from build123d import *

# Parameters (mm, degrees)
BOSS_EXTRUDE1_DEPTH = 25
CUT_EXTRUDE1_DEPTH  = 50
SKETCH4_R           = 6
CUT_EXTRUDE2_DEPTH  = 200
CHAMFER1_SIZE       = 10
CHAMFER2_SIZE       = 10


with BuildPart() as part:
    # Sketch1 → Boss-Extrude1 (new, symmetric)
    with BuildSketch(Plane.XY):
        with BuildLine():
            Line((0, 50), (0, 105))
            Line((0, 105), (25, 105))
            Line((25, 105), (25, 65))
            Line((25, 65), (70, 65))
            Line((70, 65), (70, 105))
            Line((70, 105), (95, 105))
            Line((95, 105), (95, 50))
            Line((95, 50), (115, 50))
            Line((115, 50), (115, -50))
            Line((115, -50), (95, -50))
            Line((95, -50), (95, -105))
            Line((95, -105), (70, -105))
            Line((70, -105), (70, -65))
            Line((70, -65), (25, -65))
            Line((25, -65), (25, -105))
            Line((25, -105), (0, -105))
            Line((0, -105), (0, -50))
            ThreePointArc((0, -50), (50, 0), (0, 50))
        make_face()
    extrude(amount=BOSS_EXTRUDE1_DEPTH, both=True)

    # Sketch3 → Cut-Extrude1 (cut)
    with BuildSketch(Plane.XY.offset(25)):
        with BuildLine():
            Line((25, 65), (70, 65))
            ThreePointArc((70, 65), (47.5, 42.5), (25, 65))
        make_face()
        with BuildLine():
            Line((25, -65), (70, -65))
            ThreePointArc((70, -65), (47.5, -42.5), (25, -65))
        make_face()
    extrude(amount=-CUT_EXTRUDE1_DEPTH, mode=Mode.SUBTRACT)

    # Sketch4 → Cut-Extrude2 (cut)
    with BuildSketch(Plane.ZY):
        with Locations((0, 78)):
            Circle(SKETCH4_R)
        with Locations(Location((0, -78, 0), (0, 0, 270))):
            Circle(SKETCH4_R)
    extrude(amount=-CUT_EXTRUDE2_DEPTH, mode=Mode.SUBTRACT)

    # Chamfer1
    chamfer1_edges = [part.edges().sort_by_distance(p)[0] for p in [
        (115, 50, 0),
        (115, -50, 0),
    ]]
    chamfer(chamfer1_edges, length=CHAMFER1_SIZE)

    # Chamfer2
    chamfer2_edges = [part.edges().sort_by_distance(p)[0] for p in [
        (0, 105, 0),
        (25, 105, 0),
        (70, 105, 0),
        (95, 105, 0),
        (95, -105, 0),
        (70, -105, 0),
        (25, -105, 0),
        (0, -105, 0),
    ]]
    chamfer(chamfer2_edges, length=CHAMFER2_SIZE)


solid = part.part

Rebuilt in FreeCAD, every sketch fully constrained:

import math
import FreeCAD as App
import Part
import Sketcher


def edges_at(feature, points):
    """Names of the edges that pass closest to the given points."""
    edges = feature.Shape.Edges
    near = lambda p: min(range(len(edges)), key=lambda i: edges[i].distToShape(Part.Vertex(*p))[0])
    return sorted({f"Edge{near(p) + 1}" for p in points})

doc = App.newDocument("Part")
params = doc.addObject("Spreadsheet::Sheet", "Params")
for row, (alias, value) in enumerate([
    ("sketch1_radius", "50 mm"),
    ("sketch1_width", "25 mm"),
    ("sketch1_width2", "45 mm"),
    ("sketch1_width3", "20 mm"),
    ("sketch1_height", "55 mm"),
    ("pad1_length", "50 mm"),
    ("sketch2_radius", "22.5 mm"),
    ("pocket1_length", "50 mm"),
    ("sketch3_diameter", "12 mm"),
    ("pocket2_length", "200 mm"),
    ("chamfer_size", "10 mm"),
    ("chamfer2_size", "10 mm"),
], start=1):
    params.set(f"A{row}", alias)
    params.set(f"B{row}", "=" + value)
    params.setAlias(f"B{row}", alias)

body = doc.addObject("PartDesign::Body", "Body")

sketch1 = body.newObject("Sketcher::SketchObject", "Sketch")
sketch1.AttachmentSupport = (doc.getObject("XY_Plane"), [""])
sketch1.MapMode = "FlatFace"
sketch1.addGeometry([
    Part.LineSegment(App.Vector(0, 105, 0), App.Vector(0, 50, 0)),
    Part.ArcOfCircle(Part.Circle(App.Vector(0, 0, 0), App.Vector(0, 0, 1), 50), math.radians(-90), math.radians(90)),
    Part.LineSegment(App.Vector(0, -50, 0), App.Vector(0, -105, 0)),
    Part.LineSegment(App.Vector(0, -105, 0), App.Vector(25, -105, 0)),
    Part.LineSegment(App.Vector(25, -105, 0), App.Vector(25, -65, 0)),
    Part.LineSegment(App.Vector(25, -65, 0), App.Vector(70, -65, 0)),
    Part.LineSegment(App.Vector(70, -65, 0), App.Vector(70, -105, 0)),
    Part.LineSegment(App.Vector(70, -105, 0), App.Vector(95, -105, 0)),
    Part.LineSegment(App.Vector(95, -105, 0), App.Vector(95, -50, 0)),
    Part.LineSegment(App.Vector(95, -50, 0), App.Vector(115, -50, 0)),
    Part.LineSegment(App.Vector(115, -50, 0), App.Vector(115, 50, 0)),
    Part.LineSegment(App.Vector(115, 50, 0), App.Vector(95, 50, 0)),
    Part.LineSegment(App.Vector(95, 50, 0), App.Vector(95, 105, 0)),
    Part.LineSegment(App.Vector(95, 105, 0), App.Vector(70, 105, 0)),
    Part.LineSegment(App.Vector(70, 105, 0), App.Vector(70, 65, 0)),
    Part.LineSegment(App.Vector(70, 65, 0), App.Vector(25, 65, 0)),
    Part.LineSegment(App.Vector(25, 65, 0), App.Vector(25, 105, 0)),
    Part.LineSegment(App.Vector(25, 105, 0), App.Vector(0, 105, 0)),
], False)
sketch1.addConstraint([
    Sketcher.Constraint("Coincident", 0, 2, 1, 2),
    Sketcher.Constraint("Coincident", 1, 1, 2, 1),
    Sketcher.Constraint("Coincident", 2, 2, 3, 1),
    Sketcher.Constraint("Coincident", 3, 2, 4, 1),
    Sketcher.Constraint("Coincident", 4, 2, 5, 1),
    Sketcher.Constraint("Coincident", 5, 2, 6, 1),
    Sketcher.Constraint("Coincident", 6, 2, 7, 1),
    Sketcher.Constraint("Coincident", 7, 2, 8, 1),
    Sketcher.Constraint("Coincident", 8, 2, 9, 1),
    Sketcher.Constraint("Coincident", 9, 2, 10, 1),
    Sketcher.Constraint("Coincident", 10, 2, 11, 1),
    Sketcher.Constraint("Coincident", 11, 2, 12, 1),
    Sketcher.Constraint("Coincident", 12, 2, 13, 1),
    Sketcher.Constraint("Coincident", 13, 2, 14, 1),
    Sketcher.Constraint("Coincident", 14, 2, 15, 1),
    Sketcher.Constraint("Coincident", 15, 2, 16, 1),
    Sketcher.Constraint("Coincident", 16, 2, 17, 1),
    Sketcher.Constraint("Coincident", 17, 2, 0, 1),
    Sketcher.Constraint("Vertical", 0),
    Sketcher.Constraint("Vertical", 2),
    Sketcher.Constraint("Horizontal", 3),
    Sketcher.Constraint("Vertical", 4),
    Sketcher.Constraint("Horizontal", 5),
    Sketcher.Constraint("Vertical", 6),
    Sketcher.Constraint("Horizontal", 7),
    Sketcher.Constraint("Vertical", 8),
    Sketcher.Constraint("Horizontal", 9),
    Sketcher.Constraint("Vertical", 10),
    Sketcher.Constraint("Horizontal", 11),
    Sketcher.Constraint("Vertical", 12),
    Sketcher.Constraint("Horizontal", 13),
    Sketcher.Constraint("Vertical", 14),
    Sketcher.Constraint("Horizontal", 15),
    Sketcher.Constraint("Vertical", 16),
    Sketcher.Constraint("Horizontal", 17),
    Sketcher.Constraint("Coincident", 1, 3, -1, 1),
    Sketcher.Constraint("Symmetric", 2, 2, 17, 2, -1, 1),
    Sketcher.Constraint("Symmetric", 8, 2, 11, 2, -1),
    Sketcher.Constraint("Symmetric", 6, 2, 13, 2, -1),
    Sketcher.Constraint("Symmetric", 4, 2, 15, 2, -1),
    Sketcher.Constraint("PointOnObject", 0, 2, -2),
    Sketcher.Constraint("Horizontal", 3, 2, 6, 2),
    Sketcher.Constraint("Horizontal", 1, 1, 8, 2),
    Sketcher.Constraint("Equal", 3, 7),
    Sketcher.Constraint("Radius", 1, 50.0),
    Sketcher.Constraint("DistanceX", 3, 1, 3, 2, 25.0),
    Sketcher.Constraint("DistanceX", 5, 1, 5, 2, 45.0),
    Sketcher.Constraint("DistanceX", 9, 1, 9, 2, 20.0),
    Sketcher.Constraint("DistanceY", 0, 2, 0, 1, 55.0),
    Sketcher.Constraint("DistanceY", 4, 1, 4, 2, 40.0),
])
sketch1.setExpression("Constraints[44]", "Params.sketch1_radius")
sketch1.setExpression("Constraints[45]", "Params.sketch1_width")
sketch1.setExpression("Constraints[46]", "Params.sketch1_width2")
sketch1.setExpression("Constraints[47]", "Params.sketch1_width3")
sketch1.setExpression("Constraints[48]", "Params.sketch1_height")
pad1 = body.newObject("PartDesign::Pad", "Pad")
pad1.Profile = sketch1
pad1.setExpression("Length", "Params.pad1_length")
pad1.Midplane = True

sketch2 = body.newObject("Sketcher::SketchObject", "Sketch001")
sketch2.AttachmentSupport = (doc.getObject("XY_Plane"), [""])
sketch2.MapMode = "FlatFace"
sketch2.AttachmentOffset = App.Placement(App.Vector(0, 0, 25), App.Rotation())
sketch2.addGeometry([
    Part.LineSegment(App.Vector(70, 65, 0), App.Vector(25, 65, 0)),
    Part.ArcOfCircle(Part.Circle(App.Vector(47.5, 65, 0), App.Vector(0, 0, 1), 22.5), math.radians(180), math.radians(360)),
    Part.LineSegment(App.Vector(25, -65, 0), App.Vector(70, -65, 0)),
    Part.ArcOfCircle(Part.Circle(App.Vector(47.5, -65, 0), App.Vector(0, 0, 1), 22.5), math.radians(0), math.radians(180)),
], False)
sketch2.addConstraint([
    Sketcher.Constraint("Coincident", 0, 1, 1, 2),
    Sketcher.Constraint("Coincident", 1, 1, 0, 2),
    Sketcher.Constraint("Coincident", 2, 1, 3, 2),
    Sketcher.Constraint("Coincident", 3, 1, 2, 2),
    Sketcher.Constraint("Horizontal", 0),
    Sketcher.Constraint("Horizontal", 2),
    Sketcher.Constraint("Equal", 1, 3),
    Sketcher.Constraint("Symmetric", 1, 3, 3, 3, -1),
    Sketcher.Constraint("Horizontal", 1, 3, 0, 1),
    Sketcher.Constraint("Horizontal", 3, 3, 2, 1),
    Sketcher.Constraint("Radius", 1, 22.5),
    Sketcher.Constraint("DistanceY", -1, 1, 1, 3, 65.0),
    Sketcher.Constraint("DistanceX", -1, 1, 0, 1, 70.0),
])
sketch2.setExpression("Constraints[10]", "Params.sketch2_radius")
pocket1 = body.newObject("PartDesign::Pocket", "Pocket")
pocket1.Profile = sketch2
pocket1.setExpression("Length", "Params.pocket1_length")

sketch3 = body.newObject("Sketcher::SketchObject", "Sketch002")
sketch3.AttachmentSupport = (doc.getObject("YZ_Plane"), [""])
sketch3.MapMode = "FlatFace"
sketch3.addGeometry([
    Part.Circle(App.Vector(78, 0, 0), App.Vector(0, 0, 1), 6),
    Part.Circle(App.Vector(-78, 0, 0), App.Vector(0, 0, 1), 6),
], False)
sketch3.addConstraint([
    Sketcher.Constraint("Equal", 0, 1),
    Sketcher.Constraint("Symmetric", 0, 3, 1, 3, -1, 1),
    Sketcher.Constraint("PointOnObject", 0, 3, -1),
    Sketcher.Constraint("Diameter", 0, 12.0),
    Sketcher.Constraint("DistanceX", -1, 1, 0, 3, 78.0),
])
sketch3.setExpression("Constraints[3]", "Params.sketch3_diameter")
pocket2 = body.newObject("PartDesign::Pocket", "Pocket001")
pocket2.Profile = sketch3
pocket2.setExpression("Length", "Params.pocket2_length")
pocket2.Reversed = True
doc.recompute()

chamfer = body.newObject("PartDesign::Chamfer", "Chamfer")
chamfer.Base = (pocket2, edges_at(pocket2, [(115, 50, 0), (115, -50, 0)]))
chamfer.setExpression("Size", "Params.chamfer_size")
doc.recompute()

chamfer2 = body.newObject("PartDesign::Chamfer", "Chamfer001")
chamfer2.Base = (chamfer, edges_at(chamfer, [
    (0, 105, 0),
    (25, 105, 0),
    (70, 105, 0),
    (95, 105, 0),
    (95, -105, 0),
    (70, -105, 0),
    (25, -105, 0),
    (0, -105, 0),
]))
chamfer2.setExpression("Size", "Params.chamfer2_size")

doc.recompute()
